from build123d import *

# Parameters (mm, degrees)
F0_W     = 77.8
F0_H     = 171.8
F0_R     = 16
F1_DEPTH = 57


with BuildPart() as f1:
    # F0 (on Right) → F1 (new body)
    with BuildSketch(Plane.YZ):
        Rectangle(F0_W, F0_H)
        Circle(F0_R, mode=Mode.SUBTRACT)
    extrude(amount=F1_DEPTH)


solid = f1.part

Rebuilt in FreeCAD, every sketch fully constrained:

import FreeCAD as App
import Part
import Sketcher

V = App.Vector
Q = App.Units.Quantity

doc = App.newDocument("Part")
body = doc.addObject("PartDesign::Body", "Body")

# Sketch on YZ plane
sketch1 = body.newObject("Sketcher::SketchObject", "Sketch")
sketch1.AttachmentSupport = (doc.getObject("YZ_Plane"), [""])
sketch1.MapMode = "FlatFace"
sketch1.addGeometry([
    Part.LineSegment(V(-39, 86, 0), V(-39, -86, 0)),  # 0
    Part.LineSegment(V(-39, -86, 0), V(39, -86, 0)),  # 1
    Part.LineSegment(V(39, -86, 0), V(39, 86, 0)),  # 2
    Part.LineSegment(V(39, 86, 0), V(-39, 86, 0)),  # 3
    Part.Circle(V(0, 0, 0), V(0, 0, 1), 16),  # 4
], False)
sketch1.addConstraint([
    Sketcher.Constraint("Coincident", 0, 2, 1, 1),
    Sketcher.Constraint("Coincident", 1, 2, 2, 1),
    Sketcher.Constraint("Coincident", 2, 2, 3, 1),
    Sketcher.Constraint("Coincident", 3, 2, 0, 1),
    Sketcher.Constraint("Vertical", 0),
    Sketcher.Constraint("Horizontal", 1),
    Sketcher.Constraint("Vertical", 2),
    Sketcher.Constraint("Horizontal", 3),
    Sketcher.Constraint("Coincident", 4, 3, -1, 1),
    Sketcher.Constraint("Symmetric", 0, 2, 2, 2, -1, 1),
    Sketcher.Constraint("Diameter", 4, Q("32 mm")),
    Sketcher.Constraint("DistanceX", 1, 1, 1, 2, Q("77.8 mm")),
    Sketcher.Constraint("DistanceY", 0, 2, 0, 1, Q("171.8 mm")),
])
pad1 = body.newObject("PartDesign::Pad", "Pad")
pad1.Profile = sketch1
pad1.Length = 57

doc.recompute()
